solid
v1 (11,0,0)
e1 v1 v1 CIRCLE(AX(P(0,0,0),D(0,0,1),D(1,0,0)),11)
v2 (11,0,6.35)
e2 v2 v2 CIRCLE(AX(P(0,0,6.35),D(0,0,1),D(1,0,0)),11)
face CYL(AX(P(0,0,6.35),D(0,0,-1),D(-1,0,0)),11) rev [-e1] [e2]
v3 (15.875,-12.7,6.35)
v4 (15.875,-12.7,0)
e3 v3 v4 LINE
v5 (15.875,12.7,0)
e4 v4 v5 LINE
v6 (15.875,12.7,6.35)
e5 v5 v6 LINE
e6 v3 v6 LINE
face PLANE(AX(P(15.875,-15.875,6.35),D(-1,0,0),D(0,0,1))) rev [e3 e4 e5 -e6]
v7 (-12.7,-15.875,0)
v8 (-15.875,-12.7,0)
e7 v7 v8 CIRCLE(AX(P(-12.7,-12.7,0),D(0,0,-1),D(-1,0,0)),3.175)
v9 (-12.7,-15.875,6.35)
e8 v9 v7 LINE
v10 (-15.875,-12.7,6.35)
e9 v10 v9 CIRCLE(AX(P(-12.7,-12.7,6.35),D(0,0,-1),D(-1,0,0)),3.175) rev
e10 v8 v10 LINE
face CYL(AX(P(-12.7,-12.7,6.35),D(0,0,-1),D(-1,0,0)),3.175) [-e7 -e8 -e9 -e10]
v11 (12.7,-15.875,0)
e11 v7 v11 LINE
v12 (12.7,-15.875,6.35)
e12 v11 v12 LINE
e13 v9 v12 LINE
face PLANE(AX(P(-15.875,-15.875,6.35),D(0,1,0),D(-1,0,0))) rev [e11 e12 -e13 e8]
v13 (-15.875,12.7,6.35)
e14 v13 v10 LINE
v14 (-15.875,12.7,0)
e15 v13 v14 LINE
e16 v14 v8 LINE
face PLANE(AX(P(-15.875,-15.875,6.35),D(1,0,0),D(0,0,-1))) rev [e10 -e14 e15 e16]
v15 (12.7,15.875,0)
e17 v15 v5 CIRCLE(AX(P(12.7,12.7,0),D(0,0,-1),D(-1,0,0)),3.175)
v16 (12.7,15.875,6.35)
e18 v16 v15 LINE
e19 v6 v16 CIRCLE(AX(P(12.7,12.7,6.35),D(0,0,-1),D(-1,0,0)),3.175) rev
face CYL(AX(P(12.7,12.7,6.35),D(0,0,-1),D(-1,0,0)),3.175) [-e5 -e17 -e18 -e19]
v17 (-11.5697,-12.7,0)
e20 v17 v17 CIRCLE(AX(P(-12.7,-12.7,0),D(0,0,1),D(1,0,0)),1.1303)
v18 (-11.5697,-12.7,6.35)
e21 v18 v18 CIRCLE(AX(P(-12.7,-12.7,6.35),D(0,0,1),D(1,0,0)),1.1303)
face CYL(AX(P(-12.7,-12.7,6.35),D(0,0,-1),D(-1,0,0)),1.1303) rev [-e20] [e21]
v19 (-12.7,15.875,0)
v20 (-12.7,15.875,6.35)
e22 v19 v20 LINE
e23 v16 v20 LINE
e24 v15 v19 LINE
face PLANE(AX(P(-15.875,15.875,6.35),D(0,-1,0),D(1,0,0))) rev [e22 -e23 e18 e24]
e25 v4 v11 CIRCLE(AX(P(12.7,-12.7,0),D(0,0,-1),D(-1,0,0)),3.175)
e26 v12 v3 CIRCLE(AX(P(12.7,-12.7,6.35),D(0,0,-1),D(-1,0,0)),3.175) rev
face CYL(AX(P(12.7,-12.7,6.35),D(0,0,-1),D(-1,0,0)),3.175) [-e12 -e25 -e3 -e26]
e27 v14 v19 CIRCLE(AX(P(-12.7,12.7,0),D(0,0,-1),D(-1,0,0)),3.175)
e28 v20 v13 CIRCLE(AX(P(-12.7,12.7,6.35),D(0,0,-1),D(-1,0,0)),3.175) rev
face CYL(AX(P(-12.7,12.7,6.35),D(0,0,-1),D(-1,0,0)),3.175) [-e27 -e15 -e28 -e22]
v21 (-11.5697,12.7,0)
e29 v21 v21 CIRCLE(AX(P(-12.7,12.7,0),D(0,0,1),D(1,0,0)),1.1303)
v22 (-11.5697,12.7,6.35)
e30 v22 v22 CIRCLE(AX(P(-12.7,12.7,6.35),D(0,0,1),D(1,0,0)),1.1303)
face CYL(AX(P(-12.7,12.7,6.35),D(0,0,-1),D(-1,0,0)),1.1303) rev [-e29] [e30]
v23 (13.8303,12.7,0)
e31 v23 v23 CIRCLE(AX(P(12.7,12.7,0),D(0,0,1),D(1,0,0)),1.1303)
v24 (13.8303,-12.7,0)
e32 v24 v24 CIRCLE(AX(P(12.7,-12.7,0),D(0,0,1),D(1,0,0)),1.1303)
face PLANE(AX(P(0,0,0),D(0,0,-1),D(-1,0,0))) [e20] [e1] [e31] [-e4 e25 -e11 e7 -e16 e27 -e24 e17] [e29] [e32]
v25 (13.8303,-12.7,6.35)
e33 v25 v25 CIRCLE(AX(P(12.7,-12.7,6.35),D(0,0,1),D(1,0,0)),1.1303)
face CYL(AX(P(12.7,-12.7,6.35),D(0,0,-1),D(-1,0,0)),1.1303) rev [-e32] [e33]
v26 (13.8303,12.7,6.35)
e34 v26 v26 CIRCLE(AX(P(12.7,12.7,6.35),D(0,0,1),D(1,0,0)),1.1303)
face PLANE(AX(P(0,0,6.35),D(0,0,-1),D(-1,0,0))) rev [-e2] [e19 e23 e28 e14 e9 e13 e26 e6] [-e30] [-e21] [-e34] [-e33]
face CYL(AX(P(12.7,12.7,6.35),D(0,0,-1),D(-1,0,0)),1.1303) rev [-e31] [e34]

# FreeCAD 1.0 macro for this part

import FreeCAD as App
import Part
import Sketcher
Q = App.Units.Quantity


def edges_at(feature, points):
    """Names of the edges that pass closest to the given points."""
    edges = feature.Shape.Edges
    near = lambda p: min(range(len(edges)), key=lambda i: edges[i].distToShape(Part.Vertex(*p))[0])
    return sorted({f"Edge{near(p) + 1}" for p in points})

doc = App.newDocument("Part")
params = doc.addObject("Spreadsheet::Sheet", "Params")
for row, (alias, value) in enumerate([
    ("sketch1_diameter", "0.089 in"),
    ("sketch1_width", "1.25 in"),
    ("pad1_length", "0.25 in"),
    ("fillet_radius", "0.125 in"),
], start=1):
    params.set(f"A{row}", alias)
    params.set(f"B{row}", "=" + value)
    params.setAlias(f"B{row}", alias)

body = doc.addObject("PartDesign::Body", "Body")

# Sketch on XY plane
sketch1 = doc.addObject("Sketcher::SketchObject", "Sketch")
body.addObject(sketch1)
sketch1.AttachmentSupport = (doc.XY_Plane, [""])
sketch1.MapMode = "FlatFace"
sketch1.addGeometry([
    Part.LineSegment(App.Vector(-15.875, 15.875, 0), App.Vector(-15.875, -15.875, 0)),  # 0
    Part.LineSegment(App.Vector(-15.875, -15.875, 0), App.Vector(15.875, -15.875, 0)),  # 1
    Part.LineSegment(App.Vector(15.875, -15.875, 0), App.Vector(15.875, 15.875, 0)),  # 2
    Part.LineSegment(App.Vector(15.875, 15.875, 0), App.Vector(-15.875, 15.875, 0)),  # 3
    Part.Circle(App.Vector(-12.7, -12.7, 0), App.Vector(0, 0, 1), 1.1303),  # 4
    Part.Circle(App.Vector(12.7, -12.7, 0), App.Vector(0, 0, 1), 1.1303),  # 5
    Part.Circle(App.Vector(-12.7, 12.7, 0), App.Vector(0, 0, 1), 1.1303),  # 6
    Part.Circle(App.Vector(0, 0, 0), App.Vector(0, 0, 1), 11),  # 7
    Part.Circle(App.Vector(12.7, 12.7, 0), App.Vector(0, 0, 1), 1.1303),  # 8
], False)
sketch1.addConstraint([
    Sketcher.Constraint("Coincident", 0, 2, 1, 1),
    Sketcher.Constraint("Coincident", 1, 2, 2, 1),
    Sketcher.Constraint("Coincident", 2, 2, 3, 1),
    Sketcher.Constraint("Coincident", 3, 2, 0, 1),
    Sketcher.Constraint("Vertical", 0),
    Sketcher.Constraint("Horizontal", 1),
    Sketcher.Constraint("Vertical", 2),
    Sketcher.Constraint("Horizontal", 3),
    Sketcher.Constraint("Coincident", 7, 3, -1, 1),
    Sketcher.Constraint("Equal", 4, 5),
    Sketcher.Constraint("Equal", 5, 6),
    Sketcher.Constraint("Equal", 6, 8),
    Sketcher.Constraint("Symmetric", 5, 3, 6, 3, -1, 1),
    Sketcher.Constraint("Symmetric", 4, 3, 8, 3, -1, 1),
    Sketcher.Constraint("Symmetric", 0, 2, 2, 2, -1, 1),
    Sketcher.Constraint("Symmetric", 4, 3, 5, 3, -2),
    Sketcher.Constraint("Equal", 3, 0),
    Sketcher.Constraint("Diameter", 4, Q("0.089 in")),
    Sketcher.Constraint("DistanceX", 4, 3, 5, 3, Q("1 in")),
    Sketcher.Constraint("DistanceY", 4, 3, 6, 3, Q("1 in")),
    Sketcher.Constraint("DistanceX", 1, 1, 1, 2, Q("1.25 in")),
    Sketcher.Constraint("Diameter", 7, 22.0),
])
sketch1.setExpression("Constraints[17]", "Params.sketch1_diameter")
sketch1.setExpression("Constraints[20]", "Params.sketch1_width")
pad1 = doc.addObject("PartDesign::Pad", "Pad")
body.addObject(pad1)
pad1.Profile = sketch1
pad1.setExpression("Length", "Params.pad1_length")
doc.recompute()

fillet = doc.addObject("PartDesign::Fillet", "Fillet")
body.addObject(fillet)
fillet.Base = (pad1, edges_at(pad1, [
    (-15.875, 15.875, 3.175),
    (15.875, 15.875, 3.175),
    (15.875, -15.875, 3.175),
    (-15.875, -15.875, 3.175),
]))
fillet.setExpression("Radius", "Params.fillet_radius")

doc.recompute()
